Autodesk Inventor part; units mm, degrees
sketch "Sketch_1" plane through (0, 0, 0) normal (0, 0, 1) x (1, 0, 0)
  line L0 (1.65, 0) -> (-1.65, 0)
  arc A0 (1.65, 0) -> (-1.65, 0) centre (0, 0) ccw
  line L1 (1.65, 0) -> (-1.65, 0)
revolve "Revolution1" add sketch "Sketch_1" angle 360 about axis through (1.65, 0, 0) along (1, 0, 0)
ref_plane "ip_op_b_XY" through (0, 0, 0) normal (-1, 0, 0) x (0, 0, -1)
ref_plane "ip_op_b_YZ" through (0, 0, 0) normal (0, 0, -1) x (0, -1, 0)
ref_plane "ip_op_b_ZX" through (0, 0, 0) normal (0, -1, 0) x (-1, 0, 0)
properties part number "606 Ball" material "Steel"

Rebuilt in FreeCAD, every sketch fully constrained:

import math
import FreeCAD as App
import Part
import Sketcher
from FreeCAD import Vector
Q = App.Units.Quantity

doc = App.newDocument("Part")
params = doc.addObject("Spreadsheet::Sheet", "Params")
for row, (alias, value) in enumerate([
    ("sketch1_radius", "1.65 mm"),
    ("revolution_angle", "360 deg"),
], start=1):
    params.set(f"A{row}", alias)
    params.set(f"B{row}", "=" + value)
    params.setAlias(f"B{row}", alias)

body = doc.addObject("PartDesign::Body", "Body")

sketch1 = body.newObject("Sketcher::SketchObject", "Sketch")
sketch1.AttachmentSupport = (doc.getObject("XY_Plane"), [""])
sketch1.MapMode = "FlatFace"
sketch1.addGeometry(Part.LineSegment(Vector(-1.6, 0, 0), Vector(1.6, 0, 0)), False)
sketch1.addGeometry(Part.ArcOfCircle(Part.Circle(Vector(0, 0, 0), Vector(0, 0, 1), 1.6), math.radians(0), math.radians(180)), False)
sketch1.addConstraint(Sketcher.Constraint("Coincident", 0, 1, 1, 2))
sketch1.addConstraint(Sketcher.Constraint("Coincident", 1, 1, 0, 2))
sketch1.addConstraint(Sketcher.Constraint("Horizontal", 0))
sketch1.addConstraint(Sketcher.Constraint("Coincident", 1, 3, -1, 1))
sketch1.addConstraint(Sketcher.Constraint("PointOnObject", 0, 1, -1))
sketch1.addConstraint(Sketcher.Constraint("Radius", 1, Q("1.65 mm")))
sketch1.setExpression("Constraints[5]", "Params.sketch1_radius")
revolution = body.newObject("PartDesign::Revolution", "Revolution")
revolution.Profile = sketch1
revolution.ReferenceAxis = (sketch1, ["H_Axis"])
revolution.setExpression("Angle", "Params.revolution_angle")

doc.recompute()
